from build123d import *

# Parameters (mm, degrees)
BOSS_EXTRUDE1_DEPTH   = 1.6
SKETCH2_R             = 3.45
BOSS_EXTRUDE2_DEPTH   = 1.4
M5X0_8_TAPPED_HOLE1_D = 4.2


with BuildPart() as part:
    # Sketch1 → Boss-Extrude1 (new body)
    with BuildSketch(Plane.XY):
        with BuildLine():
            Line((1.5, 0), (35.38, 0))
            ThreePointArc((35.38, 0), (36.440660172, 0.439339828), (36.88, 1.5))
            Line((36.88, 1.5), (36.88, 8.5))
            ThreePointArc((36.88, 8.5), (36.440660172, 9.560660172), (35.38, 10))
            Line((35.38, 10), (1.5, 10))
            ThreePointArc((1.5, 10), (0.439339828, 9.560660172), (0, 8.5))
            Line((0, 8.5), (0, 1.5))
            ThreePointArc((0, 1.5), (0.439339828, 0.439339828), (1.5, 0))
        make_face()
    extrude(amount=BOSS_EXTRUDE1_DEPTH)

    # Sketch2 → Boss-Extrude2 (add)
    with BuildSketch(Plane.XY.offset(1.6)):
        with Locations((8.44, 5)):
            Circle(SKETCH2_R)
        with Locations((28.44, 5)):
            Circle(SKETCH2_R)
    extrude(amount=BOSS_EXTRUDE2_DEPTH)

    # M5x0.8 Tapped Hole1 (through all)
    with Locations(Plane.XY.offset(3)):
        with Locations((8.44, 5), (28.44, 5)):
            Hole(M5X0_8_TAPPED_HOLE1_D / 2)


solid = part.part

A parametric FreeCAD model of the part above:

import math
import FreeCAD as App
import Part
import Sketcher
Q = App.Units.Quantity

doc = App.newDocument("Part")
body = doc.addObject("PartDesign::Body", "Body")

# Sketch on XY plane
sketch1 = body.newObject("Sketcher::SketchObject", "Sketch")
sketch1.AttachmentSupport = (doc.getObject("XY_Plane"), [""])
sketch1.MapMode = "FlatFace"
sketch1.addGeometry([
    Part.LineSegment(App.Vector(1.5, 0, 0), App.Vector(35.38, 0, 0)),  # 0
    Part.ArcOfCircle(Part.Circle(App.Vector(35.38, 1.5, 0), App.Vector(0, 0, 1), 1.5), math.radians(-90), math.radians(0)),  # 1
    Part.LineSegment(App.Vector(36.88, 1.5, 0), App.Vector(36.88, 8.5, 0)),  # 2
    Part.ArcOfCircle(Part.Circle(App.Vector(35.38, 8.5, 0), App.Vector(0, 0, 1), 1.5), math.radians(0), math.radians(90)),  # 3
    Part.LineSegment(App.Vector(35.38, 10, 0), App.Vector(1.5, 10, 0)),  # 4
    Part.ArcOfCircle(Part.Circle(App.Vector(1.5, 8.5, 0), App.Vector(0, 0, 1), 1.5), math.radians(90), math.radians(180)),  # 5
    Part.LineSegment(App.Vector(0, 8.5, 0), App.Vector(0, 1.5, 0)),  # 6
    Part.ArcOfCircle(Part.Circle(App.Vector(1.5, 1.5, 0), App.Vector(0, 0, 1), 1.5), math.radians(180), math.radians(270)),  # 7
], False)
sketch1.addConstraint([
    Sketcher.Constraint("Tangent", 0, 2, 1, 1),
    Sketcher.Constraint("Tangent", 1, 2, 2, 1),
    Sketcher.Constraint("Tangent", 2, 2, 3, 1),
    Sketcher.Constraint("Tangent", 3, 2, 4, 1),
    Sketcher.Constraint("Tangent", 4, 2, 5, 1),
    Sketcher.Constraint("Tangent", 5, 2, 6, 1),
    Sketcher.Constraint("Tangent", 6, 2, 7, 1),
    Sketcher.Constraint("Tangent", 7, 2, 0, 1),
    Sketcher.Constraint("Horizontal", 0),
    Sketcher.Constraint("Vertical", 2),
    Sketcher.Constraint("Horizontal", 4),
    Sketcher.Constraint("Vertical", 6),
    Sketcher.Constraint("Equal", 1, 3),
    Sketcher.Constraint("Equal", 3, 5),
    Sketcher.Constraint("Equal", 5, 7),
    Sketcher.Constraint("PointOnObject", 0, 2, -1),
    Sketcher.Constraint("PointOnObject", 5, 2, -2),
    Sketcher.Constraint("Radius", 1, Q("1.5 mm")),
    Sketcher.Constraint("DistanceY", 2, 1, 2, 2, Q("7 mm")),
    Sketcher.Constraint("DistanceX", 0, 1, 0, 2, Q("33.88 mm")),
])
pad1 = body.newObject("PartDesign::Pad", "Pad")
pad1.Profile = sketch1
pad1.Length = 1.6

# Sketch on XY plane
sketch2 = body.newObject("Sketcher::SketchObject", "Sketch001")
sketch2.AttachmentSupport = (doc.getObject("XY_Plane"), [""])
sketch2.MapMode = "FlatFace"
sketch2.AttachmentOffset = App.Placement(App.Vector(0, 0, 1.6), App.Rotation())
sketch2.addGeometry([
    Part.Circle(App.Vector(8.44, 5, 0), App.Vector(0, 0, 1), 3.45),
    Part.Circle(App.Vector(28.44, 5, 0), App.Vector(0, 0, 1), 3.45),
], False)
sketch2.addConstraint([
    Sketcher.Constraint("Equal", 0, 1),
    Sketcher.Constraint("Horizontal", 0, 3, 1, 3),
    Sketcher.Constraint("Diameter", 0, Q("6.9 mm")),
    Sketcher.Constraint("DistanceY", -1, 1, 0, 3, Q("5 mm")),
    Sketcher.Constraint("DistanceX", 0, 3, 1, 3, Q("20 mm")),
    Sketcher.Constraint("DistanceX", -1, 1, 0, 3, Q("8.44 mm")),
])
pad2 = body.newObject("PartDesign::Pad", "Pad001")
pad2.Profile = sketch2
pad2.Length = 1.4

# Sketch on XY plane
sketch3 = body.newObject("Sketcher::SketchObject", "Sketch002")
sketch3.AttachmentSupport = (doc.getObject("XY_Plane"), [""])
sketch3.MapMode = "FlatFace"
sketch3.AttachmentOffset = App.Placement(App.Vector(0, 0, 3), App.Rotation())
sketch3.addGeometry([
    Part.Circle(App.Vector(8.44, 5, 0), App.Vector(0, 0, 1), 2.1),
    Part.Circle(App.Vector(28.44, 5, 0), App.Vector(0, 0, 1), 2.1),
], False)
sketch3.addConstraint([
    Sketcher.Constraint("Equal", 0, 1),
    Sketcher.Constraint("Horizontal", 0, 3, 1, 3),
    Sketcher.Constraint("Diameter", 0, Q("4.2 mm")),
    Sketcher.Constraint("DistanceY", -1, 1, 0, 3, Q("5 mm")),
    Sketcher.Constraint("DistanceX", 0, 3, 1, 3, Q("20 mm")),
    Sketcher.Constraint("DistanceX", -1, 1, 0, 3, Q("8.44 mm")),
])
doc.recompute()
hole = body.newObject("PartDesign::Hole", "Hole")
hole.Profile = sketch3
hole.ThreadType = "None"
hole.Diameter = 4.2
hole.DepthType = "ThroughAll"

doc.recompute()
